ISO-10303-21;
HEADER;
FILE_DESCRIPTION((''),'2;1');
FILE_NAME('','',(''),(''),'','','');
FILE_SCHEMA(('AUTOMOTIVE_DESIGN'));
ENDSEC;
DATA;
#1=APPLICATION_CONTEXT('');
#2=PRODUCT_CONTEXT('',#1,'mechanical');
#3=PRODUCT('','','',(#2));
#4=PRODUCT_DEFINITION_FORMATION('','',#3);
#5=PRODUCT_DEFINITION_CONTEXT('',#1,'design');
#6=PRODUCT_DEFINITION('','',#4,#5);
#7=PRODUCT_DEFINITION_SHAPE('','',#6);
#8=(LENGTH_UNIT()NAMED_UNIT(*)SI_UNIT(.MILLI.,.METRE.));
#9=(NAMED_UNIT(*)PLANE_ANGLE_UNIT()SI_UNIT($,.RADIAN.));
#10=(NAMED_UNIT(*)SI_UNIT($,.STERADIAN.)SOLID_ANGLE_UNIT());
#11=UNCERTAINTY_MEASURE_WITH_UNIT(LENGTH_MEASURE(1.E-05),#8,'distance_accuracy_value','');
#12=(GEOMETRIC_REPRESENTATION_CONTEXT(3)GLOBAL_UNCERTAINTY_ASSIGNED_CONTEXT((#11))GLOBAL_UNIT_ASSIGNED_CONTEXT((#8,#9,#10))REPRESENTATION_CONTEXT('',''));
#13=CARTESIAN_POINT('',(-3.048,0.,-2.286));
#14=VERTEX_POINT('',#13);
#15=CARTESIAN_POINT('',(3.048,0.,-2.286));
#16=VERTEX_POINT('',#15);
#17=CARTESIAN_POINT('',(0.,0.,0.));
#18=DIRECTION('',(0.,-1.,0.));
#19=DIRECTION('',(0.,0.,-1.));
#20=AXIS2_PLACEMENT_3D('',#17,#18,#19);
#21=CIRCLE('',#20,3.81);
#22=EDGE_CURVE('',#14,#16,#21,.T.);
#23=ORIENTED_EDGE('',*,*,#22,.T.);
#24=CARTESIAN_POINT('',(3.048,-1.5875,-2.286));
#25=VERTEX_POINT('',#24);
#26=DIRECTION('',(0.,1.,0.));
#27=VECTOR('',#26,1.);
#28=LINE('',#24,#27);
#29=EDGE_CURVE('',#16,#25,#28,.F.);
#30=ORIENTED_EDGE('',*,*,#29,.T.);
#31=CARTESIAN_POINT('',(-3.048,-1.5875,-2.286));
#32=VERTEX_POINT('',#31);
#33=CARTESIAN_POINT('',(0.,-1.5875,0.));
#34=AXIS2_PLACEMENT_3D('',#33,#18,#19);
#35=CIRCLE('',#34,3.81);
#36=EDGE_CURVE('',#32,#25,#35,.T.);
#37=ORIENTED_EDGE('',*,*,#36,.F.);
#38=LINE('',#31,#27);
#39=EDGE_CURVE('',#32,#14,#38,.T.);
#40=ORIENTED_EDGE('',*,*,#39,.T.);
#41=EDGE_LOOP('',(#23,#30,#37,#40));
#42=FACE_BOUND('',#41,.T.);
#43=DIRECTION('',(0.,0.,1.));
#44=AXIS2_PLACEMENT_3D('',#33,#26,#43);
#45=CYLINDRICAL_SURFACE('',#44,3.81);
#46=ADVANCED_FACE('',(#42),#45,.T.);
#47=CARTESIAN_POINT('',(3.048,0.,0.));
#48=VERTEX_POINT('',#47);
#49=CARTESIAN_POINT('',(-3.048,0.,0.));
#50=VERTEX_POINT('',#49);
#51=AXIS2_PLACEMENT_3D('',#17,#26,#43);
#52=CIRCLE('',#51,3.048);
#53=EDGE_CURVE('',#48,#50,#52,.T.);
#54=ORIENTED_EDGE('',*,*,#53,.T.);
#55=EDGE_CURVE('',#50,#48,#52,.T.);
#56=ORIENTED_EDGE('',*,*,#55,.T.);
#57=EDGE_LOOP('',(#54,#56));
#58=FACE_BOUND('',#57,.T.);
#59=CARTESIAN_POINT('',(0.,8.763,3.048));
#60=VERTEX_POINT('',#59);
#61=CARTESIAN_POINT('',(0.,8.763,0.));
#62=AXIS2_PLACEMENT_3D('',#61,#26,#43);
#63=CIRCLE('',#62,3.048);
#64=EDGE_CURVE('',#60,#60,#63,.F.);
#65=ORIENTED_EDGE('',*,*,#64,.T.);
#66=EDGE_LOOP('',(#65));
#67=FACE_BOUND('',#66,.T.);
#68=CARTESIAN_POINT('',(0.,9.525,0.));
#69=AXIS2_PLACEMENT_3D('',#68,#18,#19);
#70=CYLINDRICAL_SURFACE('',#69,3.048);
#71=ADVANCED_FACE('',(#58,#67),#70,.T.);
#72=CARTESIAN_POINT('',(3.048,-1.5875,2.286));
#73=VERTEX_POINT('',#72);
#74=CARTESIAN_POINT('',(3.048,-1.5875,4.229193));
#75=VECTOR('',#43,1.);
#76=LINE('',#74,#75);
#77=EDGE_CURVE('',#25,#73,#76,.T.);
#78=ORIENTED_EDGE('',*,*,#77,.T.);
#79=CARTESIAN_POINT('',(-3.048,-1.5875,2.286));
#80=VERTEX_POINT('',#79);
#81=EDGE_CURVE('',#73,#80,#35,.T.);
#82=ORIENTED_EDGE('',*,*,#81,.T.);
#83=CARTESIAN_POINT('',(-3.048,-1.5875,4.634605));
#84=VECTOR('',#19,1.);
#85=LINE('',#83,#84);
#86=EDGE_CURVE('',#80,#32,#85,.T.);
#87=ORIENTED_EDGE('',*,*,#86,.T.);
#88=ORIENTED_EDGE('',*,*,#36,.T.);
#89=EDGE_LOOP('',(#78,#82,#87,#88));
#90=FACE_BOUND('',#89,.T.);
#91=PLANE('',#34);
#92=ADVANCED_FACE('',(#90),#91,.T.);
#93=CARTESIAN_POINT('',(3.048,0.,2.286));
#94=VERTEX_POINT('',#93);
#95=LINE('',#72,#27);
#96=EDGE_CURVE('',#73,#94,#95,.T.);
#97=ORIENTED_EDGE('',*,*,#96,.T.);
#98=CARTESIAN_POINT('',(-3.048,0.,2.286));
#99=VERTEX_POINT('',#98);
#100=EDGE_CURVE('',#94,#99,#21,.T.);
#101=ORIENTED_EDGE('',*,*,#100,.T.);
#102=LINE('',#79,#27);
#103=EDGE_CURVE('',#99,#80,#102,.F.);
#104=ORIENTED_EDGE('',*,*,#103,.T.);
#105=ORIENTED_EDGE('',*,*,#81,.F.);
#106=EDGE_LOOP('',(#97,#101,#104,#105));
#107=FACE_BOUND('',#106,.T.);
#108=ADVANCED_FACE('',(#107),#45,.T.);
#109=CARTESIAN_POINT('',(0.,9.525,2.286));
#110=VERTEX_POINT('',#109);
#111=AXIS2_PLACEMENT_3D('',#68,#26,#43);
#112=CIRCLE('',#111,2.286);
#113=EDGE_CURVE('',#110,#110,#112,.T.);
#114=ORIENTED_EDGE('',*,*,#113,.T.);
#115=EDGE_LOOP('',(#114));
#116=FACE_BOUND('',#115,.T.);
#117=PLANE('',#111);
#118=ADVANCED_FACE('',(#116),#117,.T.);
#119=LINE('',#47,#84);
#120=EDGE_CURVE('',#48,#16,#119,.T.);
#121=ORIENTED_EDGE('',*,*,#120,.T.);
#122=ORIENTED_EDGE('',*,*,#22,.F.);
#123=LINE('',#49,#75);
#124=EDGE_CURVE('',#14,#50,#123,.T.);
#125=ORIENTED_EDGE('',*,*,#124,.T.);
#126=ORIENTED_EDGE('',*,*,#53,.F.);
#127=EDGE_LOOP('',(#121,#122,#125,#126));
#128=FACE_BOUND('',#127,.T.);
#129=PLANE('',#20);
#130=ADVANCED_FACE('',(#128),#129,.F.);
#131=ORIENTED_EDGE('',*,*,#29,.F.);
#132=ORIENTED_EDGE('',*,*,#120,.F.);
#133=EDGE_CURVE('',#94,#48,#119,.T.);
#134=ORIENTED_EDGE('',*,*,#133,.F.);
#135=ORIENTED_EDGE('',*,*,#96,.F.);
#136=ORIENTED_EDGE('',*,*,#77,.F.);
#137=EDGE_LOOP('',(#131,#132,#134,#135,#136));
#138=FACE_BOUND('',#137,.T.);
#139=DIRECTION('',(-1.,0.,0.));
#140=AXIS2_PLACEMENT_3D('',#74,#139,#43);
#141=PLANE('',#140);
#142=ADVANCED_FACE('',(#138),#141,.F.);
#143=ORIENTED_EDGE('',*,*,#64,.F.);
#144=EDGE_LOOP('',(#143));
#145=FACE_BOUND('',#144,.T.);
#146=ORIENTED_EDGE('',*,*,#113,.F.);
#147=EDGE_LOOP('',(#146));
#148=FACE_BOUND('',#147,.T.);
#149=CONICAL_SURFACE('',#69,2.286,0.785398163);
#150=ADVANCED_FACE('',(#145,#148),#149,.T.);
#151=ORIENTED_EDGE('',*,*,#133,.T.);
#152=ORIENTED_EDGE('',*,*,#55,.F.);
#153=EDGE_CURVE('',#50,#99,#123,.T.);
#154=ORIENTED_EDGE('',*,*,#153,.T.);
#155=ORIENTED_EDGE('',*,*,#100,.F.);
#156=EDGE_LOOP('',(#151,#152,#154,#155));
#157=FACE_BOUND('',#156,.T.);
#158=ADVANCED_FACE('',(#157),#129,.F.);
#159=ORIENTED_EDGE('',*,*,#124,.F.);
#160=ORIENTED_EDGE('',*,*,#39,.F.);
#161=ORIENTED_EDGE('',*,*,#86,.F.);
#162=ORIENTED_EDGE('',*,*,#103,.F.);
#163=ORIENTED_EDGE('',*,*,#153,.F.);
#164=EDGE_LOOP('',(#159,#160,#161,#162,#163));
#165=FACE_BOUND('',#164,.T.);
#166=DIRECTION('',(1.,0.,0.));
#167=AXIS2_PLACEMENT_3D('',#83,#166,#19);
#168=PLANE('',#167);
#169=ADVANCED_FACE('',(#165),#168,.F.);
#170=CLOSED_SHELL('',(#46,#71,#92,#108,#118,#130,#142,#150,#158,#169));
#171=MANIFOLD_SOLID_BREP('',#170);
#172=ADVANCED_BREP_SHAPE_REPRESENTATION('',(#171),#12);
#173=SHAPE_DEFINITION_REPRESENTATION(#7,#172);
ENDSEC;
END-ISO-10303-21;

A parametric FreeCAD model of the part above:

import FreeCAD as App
import Part
import Sketcher
Q = App.Units.Quantity


def edges_at(feature, points):
    """Names of the edges that pass closest to the given points."""
    edges = feature.Shape.Edges
    near = lambda p: min(range(len(edges)), key=lambda i: edges[i].distToShape(Part.Vertex(*p))[0])
    return sorted({f"Edge{near(p) + 1}" for p in points})


def add_polygon(sketch, points):
    """Adds a closed chain of lines whose ends are joined by coincident constraints."""
    first, n = sketch.GeometryCount, len(points)
    for a, b in zip(points, points[1:] + points[:1]):
        sketch.addGeometry(Part.LineSegment(App.Vector(*a, 0), App.Vector(*b, 0)), False)
    for i in range(n):
        sketch.addConstraint(Sketcher.Constraint("Coincident", first + i, 2, first + (i + 1) % n, 1))

doc = App.newDocument("Part")
body = doc.addObject("PartDesign::Body", "Body")

# Sketch on XZ plane
sketch1 = doc.addObject("Sketcher::SketchObject", "Sketch")
body.addObject(sketch1)
sketch1.AttachmentSupport = (doc.XZ_Plane, [""])
sketch1.MapMode = "FlatFace"
sketch1.addGeometry(Part.Circle(App.Vector(0, 0, 0), App.Vector(0, 0, 1), 3), False)
sketch1.addConstraint([
    Sketcher.Constraint("Coincident", 0, 3, -1, 1),
    Sketcher.Constraint("Diameter", 0, Q("0.24 in")),
])
pad1 = doc.addObject("PartDesign::Pad", "Pad")
body.addObject(pad1)
pad1.Profile = sketch1
pad1.Length = Q("0.375 in")
pad1.Reversed = True
doc.recompute()

chamfer = doc.addObject("PartDesign::Chamfer", "Chamfer")
body.addObject(chamfer)
chamfer.Base = (pad1, edges_at(pad1, [(0, 9.525, 3.048)]))
chamfer.Size = Q("0.03 in")

# Sketch on XZ plane
sketch2 = doc.addObject("Sketcher::SketchObject", "Sketch001")
body.addObject(sketch2)
sketch2.AttachmentSupport = (doc.XZ_Plane, [""])
sketch2.MapMode = "FlatFace"
sketch2.addGeometry(Part.Circle(App.Vector(0, 0, 0), App.Vector(0, 0, 1), 3.8), False)
sketch2.addConstraint([
    Sketcher.Constraint("Coincident", 0, 3, -1, 1),
    Sketcher.Constraint("Diameter", 0, Q("0.3 in")),
])
pad2 = doc.addObject("PartDesign::Pad", "Pad001")
body.addObject(pad2)
pad2.Profile = sketch2
pad2.Length = Q("0.0625 in")

# Sketch on XZ plane
sketch3 = doc.addObject("Sketcher::SketchObject", "Sketch002")
body.addObject(sketch3)
sketch3.AttachmentSupport = (doc.XZ_Plane, [""])
sketch3.MapMode = "FlatFace"
add_polygon(sketch3, [(-8, -5), (-8, 5), (-3, 5), (-3, -5)])  # lines 0-3
add_polygon(sketch3, [(3, -4), (3, 4), (13, 4), (13, -4)])  # lines 4-7
sketch3.addConstraint([
    Sketcher.Constraint("Vertical", 0),
    Sketcher.Constraint("Horizontal", 1),
    Sketcher.Constraint("Vertical", 2),
    Sketcher.Constraint("Horizontal", 3),
    Sketcher.Constraint("Vertical", 4),
    Sketcher.Constraint("Horizontal", 5),
    Sketcher.Constraint("Vertical", 6),
    Sketcher.Constraint("Horizontal", 7),
    Sketcher.Constraint("DistanceX", 1, 2, -1, 1, Q("0.12 in")),
    Sketcher.Constraint("DistanceX", -1, 1, 4, 2, Q("0.12 in")),
    Sketcher.Constraint("DistanceX", 1, 1, 1, 2, 5.159799),
    Sketcher.Constraint("DistanceX", 5, 1, 5, 2, 9.61934),
    Sketcher.Constraint("DistanceY", 0, 1, 0, 2, 9.269211),
    Sketcher.Constraint("DistanceY", 4, 1, 4, 2, 8.458385),
    Sketcher.Constraint("DistanceY", -1, 1, 0, 2, 4.634605),
    Sketcher.Constraint("DistanceY", -1, 1, 4, 2, 4.229193),
])
pocket1 = doc.addObject("PartDesign::Pocket", "Pocket")
body.addObject(pocket1)
pocket1.Profile = sketch3
pocket1.Type = "ThroughAll"
pocket1.Reversed = True

doc.recompute()
